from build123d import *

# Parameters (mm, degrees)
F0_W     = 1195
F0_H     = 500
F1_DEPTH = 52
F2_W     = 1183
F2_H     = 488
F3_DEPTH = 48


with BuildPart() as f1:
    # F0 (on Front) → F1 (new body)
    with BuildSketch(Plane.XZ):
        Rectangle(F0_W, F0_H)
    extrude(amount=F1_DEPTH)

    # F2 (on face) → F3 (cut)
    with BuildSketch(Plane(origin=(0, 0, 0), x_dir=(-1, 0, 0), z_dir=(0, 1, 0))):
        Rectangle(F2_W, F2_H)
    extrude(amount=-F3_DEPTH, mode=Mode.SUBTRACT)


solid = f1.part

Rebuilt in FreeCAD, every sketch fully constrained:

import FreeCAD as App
import Part
import Sketcher
from FreeCAD import Vector


def add_polygon(sketch, points):
    """Adds a closed chain of lines whose ends are joined by coincident constraints."""
    first, n = sketch.GeometryCount, len(points)
    for a, b in zip(points, points[1:] + points[:1]):
        sketch.addGeometry(Part.LineSegment(App.Vector(*a, 0), App.Vector(*b, 0)), False)
    for i in range(n):
        sketch.addConstraint(Sketcher.Constraint("Coincident", first + i, 2, first + (i + 1) % n, 1))

doc = App.newDocument("Part")
params = doc.addObject("Spreadsheet::Sheet", "Params")
for row, (alias, value) in enumerate([
    ("sketch1_width", "1195 mm"),
    ("sketch1_height", "500 mm"),
    ("pad1_length", "52 mm"),
    ("sketch2_width", "1183 mm"),
    ("sketch2_height", "488 mm"),
    ("pocket1_length", "48 mm"),
], start=1):
    params.set(f"A{row}", alias)
    params.set(f"B{row}", "=" + value)
    params.setAlias(f"B{row}", alias)

body = doc.addObject("PartDesign::Body", "Body")

# Sketch on XZ plane
sketch1 = body.newObject("Sketcher::SketchObject", "Sketch")
sketch1.AttachmentSupport = (doc.getObject("XZ_Plane"), [""])
sketch1.MapMode = "FlatFace"
add_polygon(sketch1, [(-598, 250), (-598, -250), (598, -250), (598, 250)])  # lines 0-3
sketch1.addConstraint(Sketcher.Constraint("Vertical", 0))
sketch1.addConstraint(Sketcher.Constraint("Horizontal", 1))
sketch1.addConstraint(Sketcher.Constraint("Vertical", 2))
sketch1.addConstraint(Sketcher.Constraint("Horizontal", 3))
sketch1.addConstraint(Sketcher.Constraint("Symmetric", 0, 2, 2, 2, -1, 1))
sketch1.addConstraint(Sketcher.Constraint("DistanceX", 1, 1, 1, 2, 1195.0))
sketch1.addConstraint(Sketcher.Constraint("DistanceY", 0, 2, 0, 1, 500.0))
sketch1.setExpression("Constraints[9]", "Params.sketch1_width")
sketch1.setExpression("Constraints[10]", "Params.sketch1_height")
pad1 = body.newObject("PartDesign::Pad", "Pad")
pad1.Profile = sketch1
pad1.setExpression("Length", "Params.pad1_length")

# Sketch on XZ plane
sketch2 = body.newObject("Sketcher::SketchObject", "Sketch001")
sketch2.AttachmentSupport = (doc.getObject("XZ_Plane"), [""])
sketch2.MapMode = "FlatFace"
add_polygon(sketch2, [(592, 244), (592, -244), (-592, -244), (-592, 244)])  # lines 0-3
sketch2.addConstraint(Sketcher.Constraint("Vertical", 0))
sketch2.addConstraint(Sketcher.Constraint("Horizontal", 1))
sketch2.addConstraint(Sketcher.Constraint("Vertical", 2))
sketch2.addConstraint(Sketcher.Constraint("Horizontal", 3))
sketch2.addConstraint(Sketcher.Constraint("Symmetric", 0, 2, 2, 2, -1, 1))
sketch2.addConstraint(Sketcher.Constraint("DistanceX", 1, 2, 1, 1, 1183.0))
sketch2.addConstraint(Sketcher.Constraint("DistanceY", 0, 2, 0, 1, 488.0))
sketch2.setExpression("Constraints[9]", "Params.sketch2_width")
sketch2.setExpression("Constraints[10]", "Params.sketch2_height")
pocket1 = body.newObject("PartDesign::Pocket", "Pocket")
pocket1.Profile = sketch2
pocket1.setExpression("Length", "Params.pocket1_length")
pocket1.Reversed = True

doc.recompute()
